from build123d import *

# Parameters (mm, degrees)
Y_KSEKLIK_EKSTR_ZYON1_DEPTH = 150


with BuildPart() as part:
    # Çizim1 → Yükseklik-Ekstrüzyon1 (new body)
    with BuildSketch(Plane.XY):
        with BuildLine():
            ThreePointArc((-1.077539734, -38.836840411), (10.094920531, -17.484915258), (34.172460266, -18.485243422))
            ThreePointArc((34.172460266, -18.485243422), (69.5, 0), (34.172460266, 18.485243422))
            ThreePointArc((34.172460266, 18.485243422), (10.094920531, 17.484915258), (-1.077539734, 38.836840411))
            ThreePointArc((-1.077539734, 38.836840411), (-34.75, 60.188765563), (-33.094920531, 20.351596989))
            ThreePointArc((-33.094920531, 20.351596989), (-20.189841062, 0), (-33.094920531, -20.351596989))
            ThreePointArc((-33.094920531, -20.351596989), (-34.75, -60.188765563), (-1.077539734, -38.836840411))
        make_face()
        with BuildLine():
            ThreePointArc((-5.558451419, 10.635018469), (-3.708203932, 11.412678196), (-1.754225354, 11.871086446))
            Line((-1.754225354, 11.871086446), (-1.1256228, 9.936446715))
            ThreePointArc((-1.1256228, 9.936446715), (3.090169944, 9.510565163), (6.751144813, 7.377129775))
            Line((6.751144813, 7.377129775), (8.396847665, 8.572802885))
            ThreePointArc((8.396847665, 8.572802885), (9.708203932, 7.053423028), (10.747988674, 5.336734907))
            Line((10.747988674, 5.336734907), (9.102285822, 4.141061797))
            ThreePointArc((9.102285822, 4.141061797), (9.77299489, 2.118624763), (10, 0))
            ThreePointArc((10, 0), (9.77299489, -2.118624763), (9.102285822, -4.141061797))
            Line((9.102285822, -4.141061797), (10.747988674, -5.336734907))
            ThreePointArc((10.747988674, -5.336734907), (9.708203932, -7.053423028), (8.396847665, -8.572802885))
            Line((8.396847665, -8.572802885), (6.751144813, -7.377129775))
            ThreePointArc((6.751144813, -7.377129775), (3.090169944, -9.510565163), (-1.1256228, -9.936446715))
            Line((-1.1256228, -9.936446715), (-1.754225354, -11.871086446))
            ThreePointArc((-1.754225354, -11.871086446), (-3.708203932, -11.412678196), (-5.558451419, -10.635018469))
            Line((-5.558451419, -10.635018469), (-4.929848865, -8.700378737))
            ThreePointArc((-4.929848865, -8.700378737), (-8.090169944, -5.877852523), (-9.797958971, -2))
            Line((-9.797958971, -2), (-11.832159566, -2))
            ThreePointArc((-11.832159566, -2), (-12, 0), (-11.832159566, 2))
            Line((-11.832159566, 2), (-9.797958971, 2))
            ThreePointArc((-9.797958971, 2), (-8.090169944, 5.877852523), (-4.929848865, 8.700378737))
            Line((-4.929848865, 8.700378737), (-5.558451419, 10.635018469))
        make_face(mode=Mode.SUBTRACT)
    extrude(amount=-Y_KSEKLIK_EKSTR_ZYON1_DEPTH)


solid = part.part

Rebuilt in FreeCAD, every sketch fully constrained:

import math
import FreeCAD as App
import Part
import Sketcher
from FreeCAD import Vector
Q = App.Units.Quantity

doc = App.newDocument("Part")
body = doc.addObject("PartDesign::Body", "Body")

sketch1 = doc.addObject("Sketcher::SketchObject", "Sketch")
body.addObject(sketch1)
sketch1.AttachmentSupport = (doc.XY_Plane, [""])
sketch1.MapMode = "FlatFace"
sketch1.addGeometry([
    Part.ArcOfCircle(Part.Circle(Vector(21.3, -37, 0), Vector(0, 0, 1), 22.5), math.radians(55), math.radians(185)),
    Part.ArcOfCircle(Part.Circle(Vector(47, 0, 0), Vector(0, 0, 1), 22.5), math.radians(-125), math.radians(125)),
    Part.ArcOfCircle(Part.Circle(Vector(21.3, 37, 0), Vector(0, 0, 1), 22.5), math.radians(175), math.radians(305)),
    Part.ArcOfCircle(Part.Circle(Vector(-23.5, 40.7, 0), Vector(0, 0, 1), 22.5), math.radians(-5), math.radians(245)),
    Part.ArcOfCircle(Part.Circle(Vector(-42.7, 0, 0), Vector(0, 0, 1), 22.5), math.radians(-65), math.radians(65)),
    Part.ArcOfCircle(Part.Circle(Vector(-23.5, -40.7, 0), Vector(0, 0, 1), 22.5), math.radians(115), math.radians(365)),
    Part.LineSegment(Vector(-4.9, 8.7, 0), Vector(-5.6, 10.6, 0)),
    Part.ArcOfCircle(Part.Circle(Vector(0, 0, 0), Vector(0, 0, 1), 12), math.radians(98.41), math.radians(117.59)),
    Part.LineSegment(Vector(-1.8, 11.9, 0), Vector(-1.1, 9.9, 0)),
    Part.ArcOfCircle(Part.Circle(Vector(0, 0, 0), Vector(0, 0, 1), 10), math.radians(48), math.radians(96)),
    Part.LineSegment(Vector(6.8, 7.4, 0), Vector(8.4, 8.6, 0)),
    Part.ArcOfCircle(Part.Circle(Vector(0, 0, 0), Vector(0, 0, 1), 12), math.radians(26.41), math.radians(45.59)),
    Part.LineSegment(Vector(10.7, 5.3, 0), Vector(9.1, 4.1, 0)),
    Part.ArcOfCircle(Part.Circle(Vector(0, 0, 0), Vector(0, 0, 1), 10), math.radians(0), math.radians(24)),
    Part.ArcOfCircle(Part.Circle(Vector(0, 0, 0), Vector(0, 0, 1), 10), math.radians(-24), math.radians(0)),
    Part.LineSegment(Vector(9.1, -4.1, 0), Vector(10.7, -5.3, 0)),
    Part.ArcOfCircle(Part.Circle(Vector(0, 0, 0), Vector(0, 0, 1), 12), math.radians(-45.59), math.radians(-26.41)),
    Part.LineSegment(Vector(8.4, -8.6, 0), Vector(6.8, -7.4, 0)),
    Part.ArcOfCircle(Part.Circle(Vector(0, 0, 0), Vector(0, 0, 1), 10), math.radians(-96), math.radians(-48)),
    Part.LineSegment(Vector(-1.1, -9.9, 0), Vector(-1.8, -11.9, 0)),
    Part.ArcOfCircle(Part.Circle(Vector(0, 0, 0), Vector(0, 0, 1), 12), math.radians(-117.59), math.radians(-98.41)),
    Part.LineSegment(Vector(-5.6, -10.6, 0), Vector(-4.9, -8.7, 0)),
    Part.ArcOfCircle(Part.Circle(Vector(0, 0, 0), Vector(0, 0, 1), 10), math.radians(-168), math.radians(-120)),
    Part.LineSegment(Vector(-9.8, -2, 0), Vector(-11.8, -2, 0)),
    Part.ArcOfCircle(Part.Circle(Vector(0, 0, 0), Vector(0, 0, 1), 12), math.radians(170.41), math.radians(189.59)),
    Part.LineSegment(Vector(-11.8, 2, 0), Vector(-9.8, 2, 0)),
    Part.ArcOfCircle(Part.Circle(Vector(0, 0, 0), Vector(0, 0, 1), 10), math.radians(120), math.radians(168)),
], False)
sketch1.addConstraint([
    Sketcher.Constraint("Tangent", 0, 1, 1, 1),
    Sketcher.Constraint("Tangent", 1, 2, 2, 2),
    Sketcher.Constraint("Tangent", 2, 1, 3, 1),
    Sketcher.Constraint("Tangent", 3, 2, 4, 2),
    Sketcher.Constraint("Tangent", 4, 1, 5, 1),
    Sketcher.Constraint("Tangent", 5, 2, 0, 2),
    Sketcher.Constraint("Coincident", 6, 2, 7, 2),
    Sketcher.Constraint("Coincident", 7, 1, 8, 1),
    Sketcher.Constraint("Coincident", 8, 2, 9, 2),
    Sketcher.Constraint("Coincident", 9, 1, 10, 1),
    Sketcher.Constraint("Coincident", 10, 2, 11, 2),
    Sketcher.Constraint("Coincident", 11, 1, 12, 1),
    Sketcher.Constraint("Coincident", 12, 2, 13, 2),
    Sketcher.Constraint("Tangent", 13, 1, 14, 2),
    Sketcher.Constraint("Coincident", 14, 1, 15, 1),
    Sketcher.Constraint("Coincident", 15, 2, 16, 2),
    Sketcher.Constraint("Coincident", 16, 1, 17, 1),
    Sketcher.Constraint("Coincident", 17, 2, 18, 2),
    Sketcher.Constraint("Coincident", 18, 1, 19, 1),
    Sketcher.Constraint("Coincident", 19, 2, 20, 2),
    Sketcher.Constraint("Coincident", 20, 1, 21, 1),
    Sketcher.Constraint("Coincident", 21, 2, 22, 2),
    Sketcher.Constraint("Coincident", 22, 1, 23, 1),
    Sketcher.Constraint("Coincident", 23, 2, 24, 2),
    Sketcher.Constraint("Coincident", 24, 1, 25, 1),
    Sketcher.Constraint("Coincident", 25, 2, 26, 2),
    Sketcher.Constraint("Coincident", 26, 1, 6, 1),
    Sketcher.Constraint("Horizontal", 23),
    Sketcher.Constraint("Horizontal", 25),
    Sketcher.Constraint("Coincident", 7, 3, -1, 1),
    Sketcher.Constraint("Coincident", 9, 3, -1, 1),
    Sketcher.Constraint("Coincident", 11, 3, -1, 1),
    Sketcher.Constraint("Coincident", 13, 3, -1, 1),
    Sketcher.Constraint("Coincident", 16, 3, -1, 1),
    Sketcher.Constraint("Coincident", 18, 3, -1, 1),
    Sketcher.Constraint("Coincident", 20, 3, -1, 1),
    Sketcher.Constraint("Coincident", 22, 3, -1, 1),
    Sketcher.Constraint("Coincident", 24, 3, -1, 1),
    Sketcher.Constraint("Coincident", 26, 3, -1, 1),
    Sketcher.Constraint("Equal", 0, 1),
    Sketcher.Constraint("Equal", 1, 2),
    Sketcher.Constraint("Equal", 2, 3),
    Sketcher.Constraint("Equal", 3, 4),
    Sketcher.Constraint("Equal", 4, 5),
    Sketcher.Constraint("Equal", 7, 11),
    Sketcher.Constraint("Equal", 9, 13),
    Sketcher.Constraint("Equal", 13, 14),
    Sketcher.Constraint("Equal", 11, 16),
    Sketcher.Constraint("Equal", 14, 18),
    Sketcher.Constraint("Equal", 16, 20),
    Sketcher.Constraint("Equal", 18, 22),
    Sketcher.Constraint("Equal", 20, 24),
    Sketcher.Constraint("Equal", 22, 26),
    Sketcher.Constraint("Symmetric", 0, 3, 2, 3, -1),
    Sketcher.Constraint("PointOnObject", 4, 3, -1),
    Sketcher.Constraint("PointOnObject", 13, 1, -1),
    Sketcher.Constraint("Parallel", 6, 8),
    Sketcher.Constraint("Parallel", 10, 12),
    Sketcher.Constraint("Parallel", 15, 17),
    Sketcher.Constraint("Parallel", 19, 21),
    Sketcher.Constraint("Vertical", 12, 2, 14, 1),
    Sketcher.Constraint("Vertical", 11, 1, 15, 2),
    Sketcher.Constraint("Vertical", 10, 2, 16, 1),
    Sketcher.Constraint("Vertical", 8, 2, 18, 1),
    Sketcher.Constraint("Vertical", 7, 1, 19, 2),
    Sketcher.Constraint("Vertical", 6, 2, 20, 1),
    Sketcher.Constraint("Vertical", 23, 2, 24, 1),
    Sketcher.Constraint("Equal", 6, 8),
    Sketcher.Constraint("Equal", 8, 10),
    Sketcher.Constraint("Equal", 10, 12),
    Sketcher.Constraint("Radius", 7, 12.0),
    Sketcher.Constraint("Radius", 9, 10.0),
    Sketcher.Constraint("Radius", 0, 22.5),
    Sketcher.Constraint("Angle", 6, Q("108 deg")),
    Sketcher.Constraint("Angle", 10, Q("36 deg")),
    Sketcher.Constraint("DistanceX", -1, 1, 1, 3, 47.0),
    Sketcher.Constraint("DistanceY", 22, 1, -1, 1, 2.0),
    Sketcher.Constraint("DistanceX", 3, 3, -1, 1, 23.5),
    Sketcher.Constraint("Distance", 6, 2.034201),
    Sketcher.Constraint("DistanceX", -1, 1, 0, 3, 21.344921),
])
pad1 = doc.addObject("PartDesign::Pad", "Pad")
body.addObject(pad1)
pad1.Profile = sketch1
pad1.Length = 150
pad1.Reversed = True

doc.recompute()
